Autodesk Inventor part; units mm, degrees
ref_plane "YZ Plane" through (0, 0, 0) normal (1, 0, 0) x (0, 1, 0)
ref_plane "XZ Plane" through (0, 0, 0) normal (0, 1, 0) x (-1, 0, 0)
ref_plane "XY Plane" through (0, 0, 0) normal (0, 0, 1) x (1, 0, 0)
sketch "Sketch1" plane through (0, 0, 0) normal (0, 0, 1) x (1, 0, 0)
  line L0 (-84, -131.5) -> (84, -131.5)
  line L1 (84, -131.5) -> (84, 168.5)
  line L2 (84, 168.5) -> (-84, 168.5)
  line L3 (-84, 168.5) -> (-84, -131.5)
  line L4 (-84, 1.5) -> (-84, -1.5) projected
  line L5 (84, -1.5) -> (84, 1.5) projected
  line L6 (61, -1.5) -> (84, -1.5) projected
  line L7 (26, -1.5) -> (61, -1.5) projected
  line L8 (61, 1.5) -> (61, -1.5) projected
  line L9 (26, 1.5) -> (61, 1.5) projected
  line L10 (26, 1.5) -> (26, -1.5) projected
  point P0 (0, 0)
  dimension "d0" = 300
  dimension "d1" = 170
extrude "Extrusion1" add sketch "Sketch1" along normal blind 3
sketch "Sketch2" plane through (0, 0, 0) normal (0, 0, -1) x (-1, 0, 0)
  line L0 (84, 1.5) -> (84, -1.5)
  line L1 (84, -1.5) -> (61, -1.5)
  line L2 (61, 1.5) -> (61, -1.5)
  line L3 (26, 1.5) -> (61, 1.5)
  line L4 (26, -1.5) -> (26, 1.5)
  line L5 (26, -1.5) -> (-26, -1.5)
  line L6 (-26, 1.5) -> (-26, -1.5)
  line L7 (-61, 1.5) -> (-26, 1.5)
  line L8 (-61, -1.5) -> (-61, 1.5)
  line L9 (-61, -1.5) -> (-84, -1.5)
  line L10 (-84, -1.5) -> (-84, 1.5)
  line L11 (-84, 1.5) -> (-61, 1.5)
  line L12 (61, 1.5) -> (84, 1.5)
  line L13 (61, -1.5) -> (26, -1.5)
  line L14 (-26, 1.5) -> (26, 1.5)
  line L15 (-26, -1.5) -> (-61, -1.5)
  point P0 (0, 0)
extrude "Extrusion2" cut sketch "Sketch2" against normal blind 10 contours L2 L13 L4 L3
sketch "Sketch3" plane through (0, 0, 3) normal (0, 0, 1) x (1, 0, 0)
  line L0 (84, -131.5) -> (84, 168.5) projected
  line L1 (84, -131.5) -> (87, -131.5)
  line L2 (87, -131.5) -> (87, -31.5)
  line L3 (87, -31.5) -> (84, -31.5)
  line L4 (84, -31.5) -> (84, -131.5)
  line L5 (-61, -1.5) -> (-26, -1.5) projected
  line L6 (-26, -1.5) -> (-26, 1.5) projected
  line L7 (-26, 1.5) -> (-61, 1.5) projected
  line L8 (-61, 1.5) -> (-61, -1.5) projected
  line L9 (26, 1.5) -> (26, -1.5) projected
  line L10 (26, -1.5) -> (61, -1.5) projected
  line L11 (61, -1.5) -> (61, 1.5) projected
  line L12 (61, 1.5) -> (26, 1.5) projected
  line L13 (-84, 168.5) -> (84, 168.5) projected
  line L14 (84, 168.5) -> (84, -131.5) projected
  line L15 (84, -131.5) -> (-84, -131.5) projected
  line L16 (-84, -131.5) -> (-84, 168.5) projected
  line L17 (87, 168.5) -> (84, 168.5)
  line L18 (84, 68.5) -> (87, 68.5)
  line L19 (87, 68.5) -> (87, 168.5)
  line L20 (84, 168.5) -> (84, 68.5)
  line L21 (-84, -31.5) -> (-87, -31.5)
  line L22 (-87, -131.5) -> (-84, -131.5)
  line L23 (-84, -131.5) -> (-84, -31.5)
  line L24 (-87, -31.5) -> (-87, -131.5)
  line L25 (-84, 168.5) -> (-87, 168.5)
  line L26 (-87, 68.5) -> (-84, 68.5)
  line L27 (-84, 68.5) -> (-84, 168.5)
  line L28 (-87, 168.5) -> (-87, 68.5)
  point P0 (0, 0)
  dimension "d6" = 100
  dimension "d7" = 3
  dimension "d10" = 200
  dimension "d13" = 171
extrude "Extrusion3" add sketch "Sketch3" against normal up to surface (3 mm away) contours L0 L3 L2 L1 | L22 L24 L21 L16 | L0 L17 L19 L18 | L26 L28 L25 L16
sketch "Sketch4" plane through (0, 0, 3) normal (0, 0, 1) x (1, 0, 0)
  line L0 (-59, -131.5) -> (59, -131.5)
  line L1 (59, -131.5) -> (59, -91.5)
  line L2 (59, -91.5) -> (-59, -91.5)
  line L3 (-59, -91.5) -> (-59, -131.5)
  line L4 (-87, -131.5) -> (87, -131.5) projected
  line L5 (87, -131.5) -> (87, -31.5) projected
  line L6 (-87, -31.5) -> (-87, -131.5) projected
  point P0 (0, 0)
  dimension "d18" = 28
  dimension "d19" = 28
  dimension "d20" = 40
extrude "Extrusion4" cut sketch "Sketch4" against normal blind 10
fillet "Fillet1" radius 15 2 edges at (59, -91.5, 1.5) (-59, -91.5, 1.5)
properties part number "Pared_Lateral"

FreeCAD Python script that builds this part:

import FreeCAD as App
import Part
import Sketcher

V = App.Vector
Q = App.Units.Quantity


def edges_at(feature, points):
    """Names of the edges that pass closest to the given points."""
    edges = feature.Shape.Edges
    near = lambda p: min(range(len(edges)), key=lambda i: edges[i].distToShape(Part.Vertex(*p))[0])
    return sorted({f"Edge{near(p) + 1}" for p in points})


def add_polygon(sketch, points):
    """Adds a closed chain of lines whose ends are joined by coincident constraints."""
    first, n = sketch.GeometryCount, len(points)
    for a, b in zip(points, points[1:] + points[:1]):
        sketch.addGeometry(Part.LineSegment(App.Vector(*a, 0), App.Vector(*b, 0)), False)
    for i in range(n):
        sketch.addConstraint(Sketcher.Constraint("Coincident", first + i, 2, first + (i + 1) % n, 1))

doc = App.newDocument("Part")
body = doc.addObject("PartDesign::Body", "Body")

# Sketch on XY plane
sketch1 = body.newObject("Sketcher::SketchObject", "Sketch")
sketch1.AttachmentSupport = (doc.getObject("XY_Plane"), [""])
sketch1.MapMode = "FlatFace"
add_polygon(sketch1, [(-84, 168.5), (-84, -131.5), (84, -131.5), (84, -1.5), (84, 168.5)])  # lines 0-4
add_polygon(sketch1, [(61, 1.5), (61, -1.5), (26, -1.5), (26, 1.5)])  # lines 5-8
sketch1.addConstraint(Sketcher.Constraint("Vertical", 0))
sketch1.addConstraint(Sketcher.Constraint("Horizontal", 1))
sketch1.addConstraint(Sketcher.Constraint("Vertical", 2))
sketch1.addConstraint(Sketcher.Constraint("Vertical", 3))
sketch1.addConstraint(Sketcher.Constraint("Horizontal", 4))
sketch1.addConstraint(Sketcher.Constraint("Vertical", 5))
sketch1.addConstraint(Sketcher.Constraint("Horizontal", 6))
sketch1.addConstraint(Sketcher.Constraint("Vertical", 7))
sketch1.addConstraint(Sketcher.Constraint("Horizontal", 8))
sketch1.addConstraint(Sketcher.Constraint("Horizontal", 2, 2, 5, 2))
sketch1.addConstraint(Sketcher.Constraint("DistanceY", 0, 2, 0, 1, Q("300 mm")))
sketch1.addConstraint(Sketcher.Constraint("DistanceY", 3, 1, 3, 2, Q("170 mm")))
sketch1.addConstraint(Sketcher.Constraint("DistanceX", 1, 1, 1, 2, Q("168 mm")))
sketch1.addConstraint(Sketcher.Constraint("DistanceX", 6, 2, 6, 1, Q("35 mm")))
sketch1.addConstraint(Sketcher.Constraint("DistanceY", 5, 2, 5, 1, Q("3 mm")))
sketch1.addConstraint(Sketcher.Constraint("DistanceX", 0, 2, -1, 1, Q("84 mm")))
sketch1.addConstraint(Sketcher.Constraint("DistanceX", -1, 1, 5, 2, Q("61 mm")))
sketch1.addConstraint(Sketcher.Constraint("DistanceY", 0, 2, -1, 1, Q("131.5 mm")))
pad1 = body.newObject("PartDesign::Pad", "Pad")
pad1.Profile = sketch1
pad1.Length = 3

# Sketch on XY plane
sketch2 = body.newObject("Sketcher::SketchObject", "Sketch001")
sketch2.AttachmentSupport = (doc.getObject("XY_Plane"), [""])
sketch2.MapMode = "FlatFace"
add_polygon(sketch2, [(-61, -1.5), (-61, 1.5), (-26, 1.5), (-26, -1.5)])  # lines 0-3
sketch2.addConstraint(Sketcher.Constraint("Vertical", 0))
sketch2.addConstraint(Sketcher.Constraint("Horizontal", 1))
sketch2.addConstraint(Sketcher.Constraint("Vertical", 2))
sketch2.addConstraint(Sketcher.Constraint("Horizontal", 3))
sketch2.addConstraint(Sketcher.Constraint("DistanceX", 1, 1, 1, 2, Q("35 mm")))
sketch2.addConstraint(Sketcher.Constraint("DistanceY", 0, 1, 0, 2, Q("3 mm")))
sketch2.addConstraint(Sketcher.Constraint("DistanceX", 0, 2, -1, 1, Q("61 mm")))
sketch2.addConstraint(Sketcher.Constraint("DistanceY", -1, 1, 0, 2, Q("1.5 mm")))
pocket1 = body.newObject("PartDesign::Pocket", "Pocket")
pocket1.Profile = sketch2
pocket1.Length = 10
pocket1.Reversed = True

# Sketch on XY plane
sketch3 = body.newObject("Sketcher::SketchObject", "Sketch002")
sketch3.AttachmentSupport = (doc.getObject("XY_Plane"), [""])
sketch3.MapMode = "FlatFace"
sketch3.AttachmentOffset = App.Placement(V(0, 0, 3), App.Rotation())
add_polygon(sketch3, [(84, -31.5), (84, -131.5), (87, -131.5), (87, -31.5)])  # lines 0-3
add_polygon(sketch3, [(-87, -131.5), (-84, -131.5), (-84, -31.5), (-87, -31.5)])  # lines 4-7
add_polygon(sketch3, [(84, 168.5), (84, 68.5), (87, 68.5), (87, 168.5)])  # lines 8-11
add_polygon(sketch3, [(-87, 68.5), (-84, 68.5), (-84, 168.5), (-87, 168.5)])  # lines 12-15
sketch3.addConstraint(Sketcher.Constraint("Vertical", 0))
sketch3.addConstraint(Sketcher.Constraint("Horizontal", 1))
sketch3.addConstraint(Sketcher.Constraint("Vertical", 2))
sketch3.addConstraint(Sketcher.Constraint("Horizontal", 3))
sketch3.addConstraint(Sketcher.Constraint("Horizontal", 4))
sketch3.addConstraint(Sketcher.Constraint("Vertical", 5))
sketch3.addConstraint(Sketcher.Constraint("Horizontal", 6))
sketch3.addConstraint(Sketcher.Constraint("Vertical", 7))
sketch3.addConstraint(Sketcher.Constraint("Vertical", 8))
sketch3.addConstraint(Sketcher.Constraint("Horizontal", 9))
sketch3.addConstraint(Sketcher.Constraint("Vertical", 10))
sketch3.addConstraint(Sketcher.Constraint("Horizontal", 11))
sketch3.addConstraint(Sketcher.Constraint("Horizontal", 12))
sketch3.addConstraint(Sketcher.Constraint("Vertical", 13))
sketch3.addConstraint(Sketcher.Constraint("Horizontal", 14))
sketch3.addConstraint(Sketcher.Constraint("Vertical", 15))
sketch3.addConstraint(Sketcher.Constraint("Symmetric", 0, 2, 4, 2, -2))
sketch3.addConstraint(Sketcher.Constraint("Symmetric", 2, 2, 6, 2, -2))
sketch3.addConstraint(Sketcher.Constraint("Symmetric", 8, 2, 12, 2, -2))
sketch3.addConstraint(Sketcher.Constraint("Symmetric", 10, 2, 14, 2, -2))
sketch3.addConstraint(Sketcher.Constraint("Vertical", 3, 2, 8, 2))
sketch3.addConstraint(Sketcher.Constraint("Vertical", 2, 2, 9, 2))
sketch3.addConstraint(Sketcher.Constraint("Equal", 7, 8))
sketch3.addConstraint(Sketcher.Constraint("DistanceX", 1, 1, 1, 2, Q("3 mm")))
sketch3.addConstraint(Sketcher.Constraint("DistanceY", 0, 2, 0, 1, Q("100 mm")))
sketch3.addConstraint(Sketcher.Constraint("DistanceX", 4, 2, 1, 2, Q("171 mm")))
sketch3.addConstraint(Sketcher.Constraint("DistanceY", 3, 2, 8, 2, Q("100 mm")))
sketch3.addConstraint(Sketcher.Constraint("DistanceY", 0, 2, -1, 1, Q("131.5 mm")))
pad2 = body.newObject("PartDesign::Pad", "Pad001")
pad2.Profile = sketch3
pad2.Length = 3
pad2.Reversed = True

# Sketch on XY plane
sketch4 = body.newObject("Sketcher::SketchObject", "Sketch003")
sketch4.AttachmentSupport = (doc.getObject("XY_Plane"), [""])
sketch4.MapMode = "FlatFace"
sketch4.AttachmentOffset = App.Placement(V(0, 0, 3), App.Rotation())
add_polygon(sketch4, [(-59, -91.5), (-59, -131.5), (59, -131.5), (59, -91.5)])  # lines 0-3
sketch4.addConstraint(Sketcher.Constraint("Vertical", 0))
sketch4.addConstraint(Sketcher.Constraint("Horizontal", 1))
sketch4.addConstraint(Sketcher.Constraint("Vertical", 2))
sketch4.addConstraint(Sketcher.Constraint("Horizontal", 3))
sketch4.addConstraint(Sketcher.Constraint("DistanceY", 0, 2, 0, 1, Q("40 mm")))
sketch4.addConstraint(Sketcher.Constraint("DistanceX", 1, 1, 1, 2, Q("118 mm")))
sketch4.addConstraint(Sketcher.Constraint("DistanceX", 0, 2, -1, 1, Q("59 mm")))
sketch4.addConstraint(Sketcher.Constraint("DistanceY", 0, 2, -1, 1, Q("131.5 mm")))
pocket2 = body.newObject("PartDesign::Pocket", "Pocket001")
pocket2.Profile = sketch4
pocket2.Length = 10
doc.recompute()

fillet = body.newObject("PartDesign::Fillet", "Fillet")
fillet.Base = (pocket2, edges_at(pocket2, [(59, -91.5, 1.5), (-59, -91.5, 1.5)]))
fillet.Radius = 15

doc.recompute()
